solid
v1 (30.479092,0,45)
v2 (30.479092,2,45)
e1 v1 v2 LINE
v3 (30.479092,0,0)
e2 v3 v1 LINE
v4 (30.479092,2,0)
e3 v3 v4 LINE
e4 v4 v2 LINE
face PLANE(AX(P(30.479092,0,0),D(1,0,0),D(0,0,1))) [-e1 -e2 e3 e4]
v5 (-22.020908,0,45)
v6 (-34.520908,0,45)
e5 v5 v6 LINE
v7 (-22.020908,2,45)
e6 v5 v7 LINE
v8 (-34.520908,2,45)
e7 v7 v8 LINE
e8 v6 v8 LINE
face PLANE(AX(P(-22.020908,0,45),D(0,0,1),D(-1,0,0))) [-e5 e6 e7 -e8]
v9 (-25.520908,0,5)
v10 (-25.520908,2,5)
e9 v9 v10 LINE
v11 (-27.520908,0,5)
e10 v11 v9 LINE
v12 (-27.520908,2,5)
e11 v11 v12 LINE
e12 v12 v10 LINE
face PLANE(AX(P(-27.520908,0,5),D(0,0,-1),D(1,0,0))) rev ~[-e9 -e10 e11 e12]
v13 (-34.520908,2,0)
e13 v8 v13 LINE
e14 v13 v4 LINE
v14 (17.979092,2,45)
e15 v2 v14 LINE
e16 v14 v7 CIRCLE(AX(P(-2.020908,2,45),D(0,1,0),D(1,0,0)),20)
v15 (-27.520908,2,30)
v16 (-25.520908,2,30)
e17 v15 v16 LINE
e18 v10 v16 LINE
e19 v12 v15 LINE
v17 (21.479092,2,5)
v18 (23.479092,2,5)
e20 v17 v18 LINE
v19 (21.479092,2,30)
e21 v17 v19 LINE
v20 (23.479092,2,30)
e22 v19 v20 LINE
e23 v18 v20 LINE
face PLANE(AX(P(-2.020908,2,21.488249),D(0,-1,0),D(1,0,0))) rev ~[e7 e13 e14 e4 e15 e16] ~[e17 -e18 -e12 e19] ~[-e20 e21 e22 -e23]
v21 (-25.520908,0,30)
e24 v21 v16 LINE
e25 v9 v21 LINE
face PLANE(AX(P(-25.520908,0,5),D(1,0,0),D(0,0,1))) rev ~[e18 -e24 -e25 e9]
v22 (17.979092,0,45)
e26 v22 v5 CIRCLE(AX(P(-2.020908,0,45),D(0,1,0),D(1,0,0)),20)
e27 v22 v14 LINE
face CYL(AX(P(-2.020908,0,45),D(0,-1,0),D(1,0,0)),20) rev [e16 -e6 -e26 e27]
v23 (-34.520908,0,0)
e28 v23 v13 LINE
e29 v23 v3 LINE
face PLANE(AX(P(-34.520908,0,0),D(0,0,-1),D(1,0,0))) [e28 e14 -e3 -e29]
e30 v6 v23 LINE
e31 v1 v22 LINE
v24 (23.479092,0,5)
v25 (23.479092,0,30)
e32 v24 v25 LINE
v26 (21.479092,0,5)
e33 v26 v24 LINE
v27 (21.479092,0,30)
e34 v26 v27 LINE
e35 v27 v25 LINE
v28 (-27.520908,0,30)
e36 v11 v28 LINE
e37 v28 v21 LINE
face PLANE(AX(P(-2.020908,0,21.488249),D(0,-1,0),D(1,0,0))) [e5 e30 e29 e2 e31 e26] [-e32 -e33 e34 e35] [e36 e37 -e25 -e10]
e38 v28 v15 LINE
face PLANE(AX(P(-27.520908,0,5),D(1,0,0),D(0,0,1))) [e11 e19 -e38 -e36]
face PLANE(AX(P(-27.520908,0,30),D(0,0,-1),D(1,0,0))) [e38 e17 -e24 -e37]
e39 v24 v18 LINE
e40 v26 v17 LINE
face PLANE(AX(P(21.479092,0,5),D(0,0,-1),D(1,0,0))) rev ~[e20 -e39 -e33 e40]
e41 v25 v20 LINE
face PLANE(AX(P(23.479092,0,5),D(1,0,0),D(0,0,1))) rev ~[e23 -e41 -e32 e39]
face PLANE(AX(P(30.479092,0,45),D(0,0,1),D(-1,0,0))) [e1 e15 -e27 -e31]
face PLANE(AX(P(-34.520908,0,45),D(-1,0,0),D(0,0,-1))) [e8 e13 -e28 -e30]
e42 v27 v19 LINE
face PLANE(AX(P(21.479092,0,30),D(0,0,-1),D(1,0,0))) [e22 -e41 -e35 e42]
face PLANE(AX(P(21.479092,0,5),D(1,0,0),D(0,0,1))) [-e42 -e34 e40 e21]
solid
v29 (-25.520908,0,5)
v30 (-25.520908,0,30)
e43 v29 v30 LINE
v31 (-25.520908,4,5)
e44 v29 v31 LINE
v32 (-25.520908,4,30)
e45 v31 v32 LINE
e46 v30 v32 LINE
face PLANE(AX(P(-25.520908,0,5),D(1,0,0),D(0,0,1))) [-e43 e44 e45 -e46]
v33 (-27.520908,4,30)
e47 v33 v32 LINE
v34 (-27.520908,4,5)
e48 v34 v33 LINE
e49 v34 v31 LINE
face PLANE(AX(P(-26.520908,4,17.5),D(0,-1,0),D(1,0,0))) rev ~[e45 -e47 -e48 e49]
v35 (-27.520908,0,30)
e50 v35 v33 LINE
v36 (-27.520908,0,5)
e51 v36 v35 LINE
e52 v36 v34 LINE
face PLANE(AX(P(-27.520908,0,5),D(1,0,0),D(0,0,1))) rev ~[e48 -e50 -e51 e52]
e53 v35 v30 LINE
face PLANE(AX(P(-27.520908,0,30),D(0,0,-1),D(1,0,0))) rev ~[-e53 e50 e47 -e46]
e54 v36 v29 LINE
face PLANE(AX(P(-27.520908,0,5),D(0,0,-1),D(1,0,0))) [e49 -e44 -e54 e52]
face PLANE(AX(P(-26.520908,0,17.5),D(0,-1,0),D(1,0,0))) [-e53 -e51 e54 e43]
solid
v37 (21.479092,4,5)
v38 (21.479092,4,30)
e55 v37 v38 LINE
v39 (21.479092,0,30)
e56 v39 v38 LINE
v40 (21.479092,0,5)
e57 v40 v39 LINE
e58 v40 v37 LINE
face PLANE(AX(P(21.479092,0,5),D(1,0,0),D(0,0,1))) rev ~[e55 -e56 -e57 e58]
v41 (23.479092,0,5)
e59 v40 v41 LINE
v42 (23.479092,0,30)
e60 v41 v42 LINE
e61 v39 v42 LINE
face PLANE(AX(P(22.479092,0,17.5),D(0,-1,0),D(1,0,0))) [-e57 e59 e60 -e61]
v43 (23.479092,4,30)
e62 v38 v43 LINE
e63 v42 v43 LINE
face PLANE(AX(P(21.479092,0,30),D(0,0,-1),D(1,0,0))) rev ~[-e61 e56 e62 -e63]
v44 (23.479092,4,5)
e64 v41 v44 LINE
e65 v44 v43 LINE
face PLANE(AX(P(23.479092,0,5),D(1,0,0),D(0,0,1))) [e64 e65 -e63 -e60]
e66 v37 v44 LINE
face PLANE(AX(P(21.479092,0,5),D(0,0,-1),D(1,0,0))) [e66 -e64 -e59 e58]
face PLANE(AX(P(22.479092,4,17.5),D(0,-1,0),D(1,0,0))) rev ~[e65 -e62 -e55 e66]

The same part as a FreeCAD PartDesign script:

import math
import FreeCAD as App
import Part
import Sketcher


def add_polygon(sketch, points):
    """Adds a closed chain of lines whose ends are joined by coincident constraints."""
    first, n = sketch.GeometryCount, len(points)
    for a, b in zip(points, points[1:] + points[:1]):
        sketch.addGeometry(Part.LineSegment(App.Vector(*a, 0), App.Vector(*b, 0)), False)
    for i in range(n):
        sketch.addConstraint(Sketcher.Constraint("Coincident", first + i, 2, first + (i + 1) % n, 1))

doc = App.newDocument("Part")
body = doc.addObject("PartDesign::Body", "Body")
body.AllowCompound = True

# Sketch on XZ plane
sketch1 = doc.addObject("Sketcher::SketchObject", "Sketch")
body.addObject(sketch1)
sketch1.AttachmentSupport = (doc.XZ_Plane, [""])
sketch1.MapMode = "FlatFace"
add_polygon(sketch1, [(-27.520908, 30), (-27.520908, 5), (-25.520908, 5), (-25.520908, 30)])  # lines 0-3
add_polygon(sketch1, [(21.479092, 30), (21.479092, 5), (23.479092, 5), (23.479092, 30)])  # lines 4-7
sketch1.addConstraint([
    Sketcher.Constraint("Vertical", 0),
    Sketcher.Constraint("Horizontal", 1),
    Sketcher.Constraint("Vertical", 2),
    Sketcher.Constraint("Horizontal", 3),
    Sketcher.Constraint("Vertical", 4),
    Sketcher.Constraint("Horizontal", 5),
    Sketcher.Constraint("Vertical", 6),
    Sketcher.Constraint("Horizontal", 7),
    Sketcher.Constraint("Horizontal", 1, 2, 4, 2),
    Sketcher.Constraint("Horizontal", 3, 2, 6, 2),
    Sketcher.Constraint("Equal", 3, 5),
    Sketcher.Constraint("DistanceX", 1, 1, 1, 2, 2.0),
    Sketcher.Constraint("DistanceY", 0, 2, 0, 1, 25.0),
    Sketcher.Constraint("DistanceY", -1, 1, 0, 2, 5.0),
    Sketcher.Constraint("DistanceX", 1, 2, 4, 2, 47.0),
    Sketcher.Constraint("DistanceX", 0, 2, -1, 1, 27.520908),
])
pad1 = doc.addObject("PartDesign::Pad", "Pad")
body.addObject(pad1)
pad1.Profile = sketch1
pad1.Length = 4
pad1.Reversed = True
body2 = doc.addObject("PartDesign::Body", "Body001")

# Sketch on XZ plane
sketch2 = doc.addObject("Sketcher::SketchObject", "Sketch001")
body2.addObject(sketch2)
sketch2.AttachmentSupport = (doc.getObject("XZ_Plane001"), [""])
sketch2.MapMode = "FlatFace"
sketch2.addGeometry(Part.LineSegment(App.Vector(-34.520908, 45, 0), App.Vector(-34.520908, 0, 0)), False)  # 0
sketch2.addGeometry(Part.LineSegment(App.Vector(-34.520908, 0, 0), App.Vector(30.479092, 0, 0)), False)  # 1
sketch2.addGeometry(Part.LineSegment(App.Vector(30.479092, 0, 0), App.Vector(30.479092, 45, 0)), False)  # 2
sketch2.addGeometry(Part.LineSegment(App.Vector(30.479092, 45, 0), App.Vector(17.979092, 45, 0)), False)  # 3
sketch2.addGeometry(Part.ArcOfCircle(Part.Circle(App.Vector(-2.020908, 45, 0), App.Vector(0, 0, 1), 20), math.radians(180), math.radians(360)), False)  # 4
sketch2.addGeometry(Part.LineSegment(App.Vector(-22.020908, 45, 0), App.Vector(-34.520908, 45, 0)), False)  # 5
add_polygon(sketch2, [(-25.520908, 5), (-27.520908, 5), (-27.520908, 30), (-25.520908, 30)])  # lines 6-9
add_polygon(sketch2, [(23.479092, 5), (21.479092, 5), (21.479092, 30), (23.479092, 30)])  # lines 10-13
sketch2.addConstraint([
    Sketcher.Constraint("Coincident", 0, 2, 1, 1),
    Sketcher.Constraint("Coincident", 1, 2, 2, 1),
    Sketcher.Constraint("Coincident", 2, 2, 3, 1),
    Sketcher.Constraint("Coincident", 3, 2, 4, 2),
    Sketcher.Constraint("Coincident", 4, 1, 5, 1),
    Sketcher.Constraint("Coincident", 5, 2, 0, 1),
    Sketcher.Constraint("Vertical", 0),
    Sketcher.Constraint("Horizontal", 1),
    Sketcher.Constraint("Vertical", 2),
    Sketcher.Constraint("Horizontal", 3),
    Sketcher.Constraint("Horizontal", 5),
    Sketcher.Constraint("Horizontal", 6),
    Sketcher.Constraint("Vertical", 7),
    Sketcher.Constraint("Horizontal", 8),
    Sketcher.Constraint("Vertical", 9),
    Sketcher.Constraint("Horizontal", 10),
    Sketcher.Constraint("Vertical", 11),
    Sketcher.Constraint("Horizontal", 12),
    Sketcher.Constraint("Vertical", 13),
    Sketcher.Constraint("PointOnObject", 0, 2, -1),
    Sketcher.Constraint("Horizontal", 4, 3, 2, 2),
    Sketcher.Constraint("Horizontal", 3, 2, 4, 1),
    Sketcher.Constraint("Horizontal", 9, 2, 10, 2),
    Sketcher.Constraint("Horizontal", 8, 2, 11, 2),
    Sketcher.Constraint("Equal", 3, 5),
    Sketcher.Constraint("Equal", 8, 10),
    Sketcher.Constraint("Radius", 4, 20.0),
    Sketcher.Constraint("DistanceX", 1, 1, 1, 2, 65.0),
    Sketcher.Constraint("DistanceX", 6, 2, 6, 1, 2.0),
    Sketcher.Constraint("DistanceY", 0, 2, 0, 1, 45.0),
    Sketcher.Constraint("DistanceY", 7, 1, 7, 2, 25.0),
    Sketcher.Constraint("DistanceY", -1, 1, 6, 2, 5.0),
    Sketcher.Constraint("DistanceX", 0, 2, 6, 2, 7.0),
    Sketcher.Constraint("DistanceX", 10, 2, 1, 2, 9.0),
    Sketcher.Constraint("DistanceX", 4, 3, -1, 1, 2.020908),
])
pad2 = doc.addObject("PartDesign::Pad", "Pad001")
body2.addObject(pad2)
pad2.Profile = sketch2
pad2.Length = 2
pad2.Reversed = True

doc.recompute()
